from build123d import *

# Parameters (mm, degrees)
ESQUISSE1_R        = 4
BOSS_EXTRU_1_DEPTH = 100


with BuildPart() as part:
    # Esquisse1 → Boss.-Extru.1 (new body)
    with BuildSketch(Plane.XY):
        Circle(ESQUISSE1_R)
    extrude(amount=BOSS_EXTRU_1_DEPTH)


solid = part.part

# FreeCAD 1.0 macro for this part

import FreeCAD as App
import Part
import Sketcher

V = App.Vector
Q = App.Units.Quantity

doc = App.newDocument("Part")
params = doc.addObject("Spreadsheet::Sheet", "Params")
for row, (alias, value) in enumerate([
    ("sketch1_diameter", "8 mm"),
    ("pad1_length", "100 mm"),
], start=1):
    params.set(f"A{row}", alias)
    params.set(f"B{row}", "=" + value)
    params.setAlias(f"B{row}", alias)

body = doc.addObject("PartDesign::Body", "Body")

sketch1 = body.newObject("Sketcher::SketchObject", "Sketch")
sketch1.AttachmentSupport = (doc.getObject("XY_Plane"), [""])
sketch1.MapMode = "FlatFace"
sketch1.addGeometry(Part.Circle(V(0, 0, 0), V(0, 0, 1), 4), False)
sketch1.addConstraint([
    Sketcher.Constraint("Coincident", 0, 3, -1, 1),
    Sketcher.Constraint("Diameter", 0, Q("8 mm")),
])
sketch1.setExpression("Constraints[1]", "Params.sketch1_diameter")
pad1 = body.newObject("PartDesign::Pad", "Pad")
pad1.Profile = sketch1
pad1.setExpression("Length", "Params.pad1_length")

doc.recompute()
